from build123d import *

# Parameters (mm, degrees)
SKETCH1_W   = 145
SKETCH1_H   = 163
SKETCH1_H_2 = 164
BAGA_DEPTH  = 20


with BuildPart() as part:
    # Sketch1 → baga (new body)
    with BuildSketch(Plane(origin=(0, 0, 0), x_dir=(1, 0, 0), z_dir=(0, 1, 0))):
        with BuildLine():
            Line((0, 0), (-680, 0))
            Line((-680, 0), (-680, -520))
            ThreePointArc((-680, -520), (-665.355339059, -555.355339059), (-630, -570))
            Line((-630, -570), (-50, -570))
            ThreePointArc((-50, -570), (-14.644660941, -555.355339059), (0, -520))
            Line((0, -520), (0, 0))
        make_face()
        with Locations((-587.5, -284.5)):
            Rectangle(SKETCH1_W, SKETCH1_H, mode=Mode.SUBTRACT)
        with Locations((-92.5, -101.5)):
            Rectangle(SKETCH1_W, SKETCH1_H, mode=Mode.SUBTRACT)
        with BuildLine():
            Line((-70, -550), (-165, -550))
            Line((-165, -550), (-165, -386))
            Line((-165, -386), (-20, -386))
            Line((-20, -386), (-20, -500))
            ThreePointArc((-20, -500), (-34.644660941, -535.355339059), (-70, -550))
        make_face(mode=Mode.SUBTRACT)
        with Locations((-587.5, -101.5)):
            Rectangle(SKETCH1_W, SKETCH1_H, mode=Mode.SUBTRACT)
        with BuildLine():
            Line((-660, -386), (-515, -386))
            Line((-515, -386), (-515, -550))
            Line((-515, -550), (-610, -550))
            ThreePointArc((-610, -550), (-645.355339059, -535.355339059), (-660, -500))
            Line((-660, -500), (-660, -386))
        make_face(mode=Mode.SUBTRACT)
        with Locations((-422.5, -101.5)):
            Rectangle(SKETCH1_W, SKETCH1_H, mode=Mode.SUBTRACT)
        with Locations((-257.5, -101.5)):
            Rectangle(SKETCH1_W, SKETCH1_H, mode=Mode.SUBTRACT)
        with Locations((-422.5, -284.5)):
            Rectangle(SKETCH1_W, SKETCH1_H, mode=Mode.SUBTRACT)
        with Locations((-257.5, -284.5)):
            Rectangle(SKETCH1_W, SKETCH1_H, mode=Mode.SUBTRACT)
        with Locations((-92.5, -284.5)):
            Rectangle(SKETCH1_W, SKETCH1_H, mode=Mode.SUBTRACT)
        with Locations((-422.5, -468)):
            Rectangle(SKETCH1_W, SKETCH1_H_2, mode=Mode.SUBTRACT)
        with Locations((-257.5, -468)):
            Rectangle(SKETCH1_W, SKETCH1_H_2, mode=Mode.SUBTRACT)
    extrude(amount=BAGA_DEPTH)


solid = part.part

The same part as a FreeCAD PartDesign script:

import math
import FreeCAD as App
import Part
import Sketcher

doc = App.newDocument("Part")
params = doc.addObject("Spreadsheet::Sheet", "Params")
for row, (alias, value) in enumerate([
    ("sketch1_radius", "50 mm"),
    ("sketch1_width", "680 mm"),
    ("sketch1_width2", "145 mm"),
    ("sketch1_height", "520 mm"),
    ("sketch1_height2", "114 mm"),
    ("pad1_length", "20 mm"),
], start=1):
    params.set(f"A{row}", alias)
    params.set(f"B{row}", "=" + value)
    params.setAlias(f"B{row}", alias)

body = doc.addObject("PartDesign::Body", "Body")

# Sketch on XZ plane
sketch1 = body.newObject("Sketcher::SketchObject", "Sketch")
sketch1.AttachmentSupport = (doc.getObject("XZ_Plane"), [""])
sketch1.MapMode = "FlatFace"
sketch1.addGeometry(Part.LineSegment(App.Vector(0, 0, 0), App.Vector(-680, 0, 0)), False)
sketch1.addGeometry(Part.LineSegment(App.Vector(-680, 0, 0), App.Vector(-680, 520, 0)), False)
sketch1.addGeometry(Part.ArcOfCircle(Part.Circle(App.Vector(-630, 520, 0), App.Vector(0, 0, 1), 50), math.radians(90), math.radians(180)), False)
sketch1.addGeometry(Part.LineSegment(App.Vector(-630, 570, 0), App.Vector(-50, 570, 0)), False)
sketch1.addGeometry(Part.ArcOfCircle(Part.Circle(App.Vector(-50, 520, 0), App.Vector(0, 0, 1), 50), math.radians(0), math.radians(90)), False)
sketch1.addGeometry(Part.LineSegment(App.Vector(0, 520, 0), App.Vector(0, 0, 0)), False)
sketch1.addGeometry(Part.LineSegment(App.Vector(-660, 500, 0), App.Vector(-660, 386, 0)), False)
sketch1.addGeometry(Part.LineSegment(App.Vector(-660, 386, 0), App.Vector(-515, 386, 0)), False)
sketch1.addGeometry(Part.LineSegment(App.Vector(-515, 386, 0), App.Vector(-515, 550, 0)), False)
sketch1.addGeometry(Part.LineSegment(App.Vector(-515, 550, 0), App.Vector(-610, 550, 0)), False)
sketch1.addGeometry(Part.ArcOfCircle(Part.Circle(App.Vector(-610, 500, 0), App.Vector(0, 0, 1), 50), math.radians(90), math.radians(180)), False)
sketch1.addGeometry(Part.LineSegment(App.Vector(-350, 550, 0), App.Vector(-495, 550, 0)), False)
sketch1.addGeometry(Part.LineSegment(App.Vector(-495, 550, 0), App.Vector(-495, 386, 0)), False)
sketch1.addGeometry(Part.LineSegment(App.Vector(-495, 386, 0), App.Vector(-350, 386, 0)), False)
sketch1.addGeometry(Part.LineSegment(App.Vector(-350, 386, 0), App.Vector(-350, 550, 0)), False)
sketch1.addGeometry(Part.LineSegment(App.Vector(-185, 550, 0), App.Vector(-330, 550, 0)), False)
sketch1.addGeometry(Part.LineSegment(App.Vector(-330, 550, 0), App.Vector(-330, 386, 0)), False)
sketch1.addGeometry(Part.LineSegment(App.Vector(-330, 386, 0), App.Vector(-185, 386, 0)), False)
sketch1.addGeometry(Part.LineSegment(App.Vector(-185, 386, 0), App.Vector(-185, 550, 0)), False)
sketch1.addGeometry(Part.ArcOfCircle(Part.Circle(App.Vector(-70, 500, 0), App.Vector(0, 0, 1), 50), math.radians(0), math.radians(90)), False)
sketch1.addGeometry(Part.LineSegment(App.Vector(-70, 550, 0), App.Vector(-165, 550, 0)), False)
sketch1.addGeometry(Part.LineSegment(App.Vector(-165, 550, 0), App.Vector(-165, 386, 0)), False)
sketch1.addGeometry(Part.LineSegment(App.Vector(-165, 386, 0), App.Vector(-20, 386, 0)), False)
sketch1.addGeometry(Part.LineSegment(App.Vector(-20, 386, 0), App.Vector(-20, 500, 0)), False)
sketch1.addGeometry(Part.LineSegment(App.Vector(-515, 366, 0), App.Vector(-660, 366, 0)), False)
sketch1.addGeometry(Part.LineSegment(App.Vector(-660, 366, 0), App.Vector(-660, 203, 0)), False)
sketch1.addGeometry(Part.LineSegment(App.Vector(-660, 203, 0), App.Vector(-515, 203, 0)), False)
sketch1.addGeometry(Part.LineSegment(App.Vector(-515, 203, 0), App.Vector(-515, 366, 0)), False)
sketch1.addGeometry(Part.LineSegment(App.Vector(-350, 366, 0), App.Vector(-495, 366, 0)), False)
sketch1.addGeometry(Part.LineSegment(App.Vector(-495, 366, 0), App.Vector(-495, 203, 0)), False)
sketch1.addGeometry(Part.LineSegment(App.Vector(-495, 203, 0), App.Vector(-350, 203, 0)), False)
sketch1.addGeometry(Part.LineSegment(App.Vector(-350, 203, 0), App.Vector(-350, 366, 0)), False)
sketch1.addGeometry(Part.LineSegment(App.Vector(-515, 183, 0), App.Vector(-660, 183, 0)), False)
sketch1.addGeometry(Part.LineSegment(App.Vector(-660, 183, 0), App.Vector(-660, 20, 0)), False)
sketch1.addGeometry(Part.LineSegment(App.Vector(-660, 20, 0), App.Vector(-515, 20, 0)), False)
sketch1.addGeometry(Part.LineSegment(App.Vector(-515, 20, 0), App.Vector(-515, 183, 0)), False)
sketch1.addGeometry(Part.LineSegment(App.Vector(-350, 183, 0), App.Vector(-495, 183, 0)), False)
sketch1.addGeometry(Part.LineSegment(App.Vector(-495, 183, 0), App.Vector(-495, 20, 0)), False)
sketch1.addGeometry(Part.LineSegment(App.Vector(-495, 20, 0), App.Vector(-350, 20, 0)), False)
sketch1.addGeometry(Part.LineSegment(App.Vector(-350, 20, 0), App.Vector(-350, 183, 0)), False)
sketch1.addGeometry(Part.LineSegment(App.Vector(-185, 366, 0), App.Vector(-330, 366, 0)), False)
sketch1.addGeometry(Part.LineSegment(App.Vector(-330, 366, 0), App.Vector(-330, 203, 0)), False)
sketch1.addGeometry(Part.LineSegment(App.Vector(-330, 203, 0), App.Vector(-185, 203, 0)), False)
sketch1.addGeometry(Part.LineSegment(App.Vector(-185, 203, 0), App.Vector(-185, 366, 0)), False)
sketch1.addGeometry(Part.LineSegment(App.Vector(-20, 366, 0), App.Vector(-165, 366, 0)), False)
sketch1.addGeometry(Part.LineSegment(App.Vector(-165, 366, 0), App.Vector(-165, 203, 0)), False)
sketch1.addGeometry(Part.LineSegment(App.Vector(-165, 203, 0), App.Vector(-20, 203, 0)), False)
sketch1.addGeometry(Part.LineSegment(App.Vector(-20, 203, 0), App.Vector(-20, 366, 0)), False)
sketch1.addGeometry(Part.LineSegment(App.Vector(-185, 183, 0), App.Vector(-330, 183, 0)), False)
sketch1.addGeometry(Part.LineSegment(App.Vector(-330, 183, 0), App.Vector(-330, 20, 0)), False)
sketch1.addGeometry(Part.LineSegment(App.Vector(-330, 20, 0), App.Vector(-185, 20, 0)), False)
sketch1.addGeometry(Part.LineSegment(App.Vector(-185, 20, 0), App.Vector(-185, 183, 0)), False)
sketch1.addGeometry(Part.LineSegment(App.Vector(-20, 183, 0), App.Vector(-165, 183, 0)), False)
sketch1.addGeometry(Part.LineSegment(App.Vector(-165, 183, 0), App.Vector(-165, 20, 0)), False)
sketch1.addGeometry(Part.LineSegment(App.Vector(-165, 20, 0), App.Vector(-20, 20, 0)), False)
sketch1.addGeometry(Part.LineSegment(App.Vector(-20, 20, 0), App.Vector(-20, 183, 0)), False)
sketch1.addConstraint(Sketcher.Constraint("Coincident", 0, 2, 1, 1))
sketch1.addConstraint(Sketcher.Constraint("Tangent", 1, 2, 2, 2))
sketch1.addConstraint(Sketcher.Constraint("Tangent", 2, 1, 3, 1))
sketch1.addConstraint(Sketcher.Constraint("Tangent", 3, 2, 4, 2))
sketch1.addConstraint(Sketcher.Constraint("Tangent", 4, 1, 5, 1))
sketch1.addConstraint(Sketcher.Constraint("Coincident", 5, 2, 0, 1))
sketch1.addConstraint(Sketcher.Constraint("Coincident", 6, 2, 7, 1))
sketch1.addConstraint(Sketcher.Constraint("Coincident", 7, 2, 8, 1))
sketch1.addConstraint(Sketcher.Constraint("Coincident", 8, 2, 9, 1))
sketch1.addConstraint(Sketcher.Constraint("Tangent", 9, 2, 10, 1))
sketch1.addConstraint(Sketcher.Constraint("Tangent", 10, 2, 6, 1))
sketch1.addConstraint(Sketcher.Constraint("Coincident", 11, 2, 12, 1))
sketch1.addConstraint(Sketcher.Constraint("Coincident", 12, 2, 13, 1))
sketch1.addConstraint(Sketcher.Constraint("Coincident", 13, 2, 14, 1))
sketch1.addConstraint(Sketcher.Constraint("Coincident", 14, 2, 11, 1))
sketch1.addConstraint(Sketcher.Constraint("Coincident", 15, 2, 16, 1))
sketch1.addConstraint(Sketcher.Constraint("Coincident", 16, 2, 17, 1))
sketch1.addConstraint(Sketcher.Constraint("Coincident", 17, 2, 18, 1))
sketch1.addConstraint(Sketcher.Constraint("Coincident", 18, 2, 15, 1))
sketch1.addConstraint(Sketcher.Constraint("Tangent", 19, 2, 20, 1))
sketch1.addConstraint(Sketcher.Constraint("Coincident", 20, 2, 21, 1))
sketch1.addConstraint(Sketcher.Constraint("Coincident", 21, 2, 22, 1))
sketch1.addConstraint(Sketcher.Constraint("Coincident", 22, 2, 23, 1))
sketch1.addConstraint(Sketcher.Constraint("Tangent", 23, 2, 19, 1))
sketch1.addConstraint(Sketcher.Constraint("Coincident", 24, 2, 25, 1))
sketch1.addConstraint(Sketcher.Constraint("Coincident", 25, 2, 26, 1))
sketch1.addConstraint(Sketcher.Constraint("Coincident", 26, 2, 27, 1))
sketch1.addConstraint(Sketcher.Constraint("Coincident", 27, 2, 24, 1))
sketch1.addConstraint(Sketcher.Constraint("Coincident", 28, 2, 29, 1))
sketch1.addConstraint(Sketcher.Constraint("Coincident", 29, 2, 30, 1))
sketch1.addConstraint(Sketcher.Constraint("Coincident", 30, 2, 31, 1))
sketch1.addConstraint(Sketcher.Constraint("Coincident", 31, 2, 28, 1))
sketch1.addConstraint(Sketcher.Constraint("Coincident", 32, 2, 33, 1))
sketch1.addConstraint(Sketcher.Constraint("Coincident", 33, 2, 34, 1))
sketch1.addConstraint(Sketcher.Constraint("Coincident", 34, 2, 35, 1))
sketch1.addConstraint(Sketcher.Constraint("Coincident", 35, 2, 32, 1))
sketch1.addConstraint(Sketcher.Constraint("Coincident", 36, 2, 37, 1))
sketch1.addConstraint(Sketcher.Constraint("Coincident", 37, 2, 38, 1))
sketch1.addConstraint(Sketcher.Constraint("Coincident", 38, 2, 39, 1))
sketch1.addConstraint(Sketcher.Constraint("Coincident", 39, 2, 36, 1))
sketch1.addConstraint(Sketcher.Constraint("Coincident", 40, 2, 41, 1))
sketch1.addConstraint(Sketcher.Constraint("Coincident", 41, 2, 42, 1))
sketch1.addConstraint(Sketcher.Constraint("Coincident", 42, 2, 43, 1))
sketch1.addConstraint(Sketcher.Constraint("Coincident", 43, 2, 40, 1))
sketch1.addConstraint(Sketcher.Constraint("Coincident", 44, 2, 45, 1))
sketch1.addConstraint(Sketcher.Constraint("Coincident", 45, 2, 46, 1))
sketch1.addConstraint(Sketcher.Constraint("Coincident", 46, 2, 47, 1))
sketch1.addConstraint(Sketcher.Constraint("Coincident", 47, 2, 44, 1))
sketch1.addConstraint(Sketcher.Constraint("Coincident", 48, 2, 49, 1))
sketch1.addConstraint(Sketcher.Constraint("Coincident", 49, 2, 50, 1))
sketch1.addConstraint(Sketcher.Constraint("Coincident", 50, 2, 51, 1))
sketch1.addConstraint(Sketcher.Constraint("Coincident", 51, 2, 48, 1))
sketch1.addConstraint(Sketcher.Constraint("Coincident", 52, 2, 53, 1))
sketch1.addConstraint(Sketcher.Constraint("Coincident", 53, 2, 54, 1))
sketch1.addConstraint(Sketcher.Constraint("Coincident", 54, 2, 55, 1))
sketch1.addConstraint(Sketcher.Constraint("Coincident", 55, 2, 52, 1))
sketch1.addConstraint(Sketcher.Constraint("Horizontal", 0))
sketch1.addConstraint(Sketcher.Constraint("Vertical", 1))
sketch1.addConstraint(Sketcher.Constraint("Horizontal", 3))
sketch1.addConstraint(Sketcher.Constraint("Vertical", 5))
sketch1.addConstraint(Sketcher.Constraint("Vertical", 6))
sketch1.addConstraint(Sketcher.Constraint("Horizontal", 7))
sketch1.addConstraint(Sketcher.Constraint("Vertical", 8))
sketch1.addConstraint(Sketcher.Constraint("Horizontal", 9))
sketch1.addConstraint(Sketcher.Constraint("Horizontal", 11))
sketch1.addConstraint(Sketcher.Constraint("Vertical", 12))
sketch1.addConstraint(Sketcher.Constraint("Horizontal", 13))
sketch1.addConstraint(Sketcher.Constraint("Vertical", 14))
sketch1.addConstraint(Sketcher.Constraint("Horizontal", 15))
sketch1.addConstraint(Sketcher.Constraint("Vertical", 16))
sketch1.addConstraint(Sketcher.Constraint("Horizontal", 17))
sketch1.addConstraint(Sketcher.Constraint("Vertical", 18))
sketch1.addConstraint(Sketcher.Constraint("Horizontal", 20))
sketch1.addConstraint(Sketcher.Constraint("Vertical", 21))
sketch1.addConstraint(Sketcher.Constraint("Horizontal", 22))
sketch1.addConstraint(Sketcher.Constraint("Vertical", 23))
sketch1.addConstraint(Sketcher.Constraint("Horizontal", 24))
sketch1.addConstraint(Sketcher.Constraint("Vertical", 25))
sketch1.addConstraint(Sketcher.Constraint("Horizontal", 26))
sketch1.addConstraint(Sketcher.Constraint("Vertical", 27))
sketch1.addConstraint(Sketcher.Constraint("Horizontal", 28))
sketch1.addConstraint(Sketcher.Constraint("Vertical", 29))
sketch1.addConstraint(Sketcher.Constraint("Horizontal", 30))
sketch1.addConstraint(Sketcher.Constraint("Vertical", 31))
sketch1.addConstraint(Sketcher.Constraint("Horizontal", 32))
sketch1.addConstraint(Sketcher.Constraint("Vertical", 33))
sketch1.addConstraint(Sketcher.Constraint("Horizontal", 34))
sketch1.addConstraint(Sketcher.Constraint("Vertical", 35))
sketch1.addConstraint(Sketcher.Constraint("Horizontal", 36))
sketch1.addConstraint(Sketcher.Constraint("Vertical", 37))
sketch1.addConstraint(Sketcher.Constraint("Horizontal", 38))
sketch1.addConstraint(Sketcher.Constraint("Vertical", 39))
sketch1.addConstraint(Sketcher.Constraint("Horizontal", 40))
sketch1.addConstraint(Sketcher.Constraint("Vertical", 41))
sketch1.addConstraint(Sketcher.Constraint("Horizontal", 42))
sketch1.addConstraint(Sketcher.Constraint("Vertical", 43))
sketch1.addConstraint(Sketcher.Constraint("Horizontal", 44))
sketch1.addConstraint(Sketcher.Constraint("Vertical", 45))
sketch1.addConstraint(Sketcher.Constraint("Horizontal", 46))
sketch1.addConstraint(Sketcher.Constraint("Vertical", 47))
sketch1.addConstraint(Sketcher.Constraint("Horizontal", 48))
sketch1.addConstraint(Sketcher.Constraint("Vertical", 49))
sketch1.addConstraint(Sketcher.Constraint("Horizontal", 50))
sketch1.addConstraint(Sketcher.Constraint("Vertical", 51))
sketch1.addConstraint(Sketcher.Constraint("Horizontal", 52))
sketch1.addConstraint(Sketcher.Constraint("Vertical", 53))
sketch1.addConstraint(Sketcher.Constraint("Horizontal", 54))
sketch1.addConstraint(Sketcher.Constraint("Vertical", 55))
sketch1.addConstraint(Sketcher.Constraint("Coincident", 5, 2, -1, 1))
sketch1.addConstraint(Sketcher.Constraint("Equal", 2, 4))
sketch1.addConstraint(Sketcher.Constraint("Equal", 4, 10))
sketch1.addConstraint(Sketcher.Constraint("Equal", 10, 19))
sketch1.addConstraint(Sketcher.Constraint("Horizontal", 10, 3, 19, 3))
sketch1.addConstraint(Sketcher.Constraint("Horizontal", 9, 2, 11, 2))
sketch1.addConstraint(Sketcher.Constraint("Horizontal", 7, 2, 12, 2))
sketch1.addConstraint(Sketcher.Constraint("Horizontal", 14, 2, 15, 2))
sketch1.addConstraint(Sketcher.Constraint("Horizontal", 13, 2, 16, 2))
sketch1.addConstraint(Sketcher.Constraint("Horizontal", 17, 2, 21, 2))
sketch1.addConstraint(Sketcher.Constraint("Horizontal", 27, 2, 28, 2))
sketch1.addConstraint(Sketcher.Constraint("Horizontal", 26, 2, 29, 2))
sketch1.addConstraint(Sketcher.Constraint("Horizontal", 35, 2, 36, 2))
sketch1.addConstraint(Sketcher.Constraint("Horizontal", 34, 2, 37, 2))
sketch1.addConstraint(Sketcher.Constraint("Horizontal", 31, 2, 40, 2))
sketch1.addConstraint(Sketcher.Constraint("Horizontal", 30, 2, 41, 2))
sketch1.addConstraint(Sketcher.Constraint("Horizontal", 43, 2, 44, 2))
sketch1.addConstraint(Sketcher.Constraint("Horizontal", 42, 2, 45, 2))
sketch1.addConstraint(Sketcher.Constraint("Horizontal", 39, 2, 48, 2))
sketch1.addConstraint(Sketcher.Constraint("Horizontal", 38, 2, 49, 2))
sketch1.addConstraint(Sketcher.Constraint("Horizontal", 51, 2, 52, 2))
sketch1.addConstraint(Sketcher.Constraint("Horizontal", 50, 2, 53, 2))
sketch1.addConstraint(Sketcher.Constraint("Vertical", 10, 2, 24, 2))
sketch1.addConstraint(Sketcher.Constraint("Vertical", 8, 2, 26, 2))
sketch1.addConstraint(Sketcher.Constraint("Vertical", 12, 2, 28, 2))
sketch1.addConstraint(Sketcher.Constraint("Vertical", 14, 2, 30, 2))
sketch1.addConstraint(Sketcher.Constraint("Vertical", 25, 2, 32, 2))
sketch1.addConstraint(Sketcher.Constraint("Vertical", 27, 2, 34, 2))
sketch1.addConstraint(Sketcher.Constraint("Vertical", 29, 2, 36, 2))
sketch1.addConstraint(Sketcher.Constraint("Vertical", 31, 2, 38, 2))
sketch1.addConstraint(Sketcher.Constraint("Vertical", 16, 2, 40, 2))
sketch1.addConstraint(Sketcher.Constraint("Vertical", 18, 2, 42, 2))
sketch1.addConstraint(Sketcher.Constraint("Vertical", 21, 2, 44, 2))
sketch1.addConstraint(Sketcher.Constraint("Vertical", 23, 2, 46, 2))
sketch1.addConstraint(Sketcher.Constraint("Vertical", 41, 2, 48, 2))
sketch1.addConstraint(Sketcher.Constraint("Vertical", 43, 2, 50, 2))
sketch1.addConstraint(Sketcher.Constraint("Vertical", 45, 2, 52, 2))
sketch1.addConstraint(Sketcher.Constraint("Vertical", 47, 2, 54, 2))
sketch1.addConstraint(Sketcher.Constraint("Equal", 7, 11))
sketch1.addConstraint(Sketcher.Constraint("Equal", 13, 15))
sketch1.addConstraint(Sketcher.Constraint("Equal", 9, 20))
sketch1.addConstraint(Sketcher.Constraint("Equal", 31, 33))
sketch1.addConstraint(Sketcher.Constraint("Radius", 2, 50.0))
sketch1.addConstraint(Sketcher.Constraint("DistanceX", 0, 2, 0, 1, 680.0))
sketch1.addConstraint(Sketcher.Constraint("DistanceX", 7, 1, 7, 2, 145.0))
sketch1.addConstraint(Sketcher.Constraint("DistanceY", 1, 1, 1, 2, 520.0))
sketch1.addConstraint(Sketcher.Constraint("DistanceY", 6, 2, 6, 1, 114.0))
sketch1.addConstraint(Sketcher.Constraint("DistanceY", 25, 2, 25, 1, 163.0))
sketch1.addConstraint(Sketcher.Constraint("DistanceX", 10, 3, -1, 1, 610.0))
sketch1.addConstraint(Sketcher.Constraint("DistanceY", -1, 1, 10, 3, 500.0))
sketch1.addConstraint(Sketcher.Constraint("DistanceX", 19, 3, -1, 1, 70.0))
sketch1.addConstraint(Sketcher.Constraint("DistanceX", 11, 2, -1, 1, 495.0))
sketch1.addConstraint(Sketcher.Constraint("DistanceX", 15, 2, -1, 1, 330.0))
sketch1.addConstraint(Sketcher.Constraint("DistanceY", -1, 1, 24, 2, 366.0))
sketch1.addConstraint(Sketcher.Constraint("DistanceY", -1, 1, 32, 2, 183.0))
sketch1.setExpression("Constraints[150]", "Params.sketch1_radius")
sketch1.setExpression("Constraints[151]", "Params.sketch1_width")
sketch1.setExpression("Constraints[152]", "Params.sketch1_width2")
sketch1.setExpression("Constraints[153]", "Params.sketch1_height")
sketch1.setExpression("Constraints[154]", "Params.sketch1_height2")
pad1 = body.newObject("PartDesign::Pad", "Pad")
pad1.Profile = sketch1
pad1.setExpression("Length", "Params.pad1_length")
pad1.Reversed = True

doc.recompute()
